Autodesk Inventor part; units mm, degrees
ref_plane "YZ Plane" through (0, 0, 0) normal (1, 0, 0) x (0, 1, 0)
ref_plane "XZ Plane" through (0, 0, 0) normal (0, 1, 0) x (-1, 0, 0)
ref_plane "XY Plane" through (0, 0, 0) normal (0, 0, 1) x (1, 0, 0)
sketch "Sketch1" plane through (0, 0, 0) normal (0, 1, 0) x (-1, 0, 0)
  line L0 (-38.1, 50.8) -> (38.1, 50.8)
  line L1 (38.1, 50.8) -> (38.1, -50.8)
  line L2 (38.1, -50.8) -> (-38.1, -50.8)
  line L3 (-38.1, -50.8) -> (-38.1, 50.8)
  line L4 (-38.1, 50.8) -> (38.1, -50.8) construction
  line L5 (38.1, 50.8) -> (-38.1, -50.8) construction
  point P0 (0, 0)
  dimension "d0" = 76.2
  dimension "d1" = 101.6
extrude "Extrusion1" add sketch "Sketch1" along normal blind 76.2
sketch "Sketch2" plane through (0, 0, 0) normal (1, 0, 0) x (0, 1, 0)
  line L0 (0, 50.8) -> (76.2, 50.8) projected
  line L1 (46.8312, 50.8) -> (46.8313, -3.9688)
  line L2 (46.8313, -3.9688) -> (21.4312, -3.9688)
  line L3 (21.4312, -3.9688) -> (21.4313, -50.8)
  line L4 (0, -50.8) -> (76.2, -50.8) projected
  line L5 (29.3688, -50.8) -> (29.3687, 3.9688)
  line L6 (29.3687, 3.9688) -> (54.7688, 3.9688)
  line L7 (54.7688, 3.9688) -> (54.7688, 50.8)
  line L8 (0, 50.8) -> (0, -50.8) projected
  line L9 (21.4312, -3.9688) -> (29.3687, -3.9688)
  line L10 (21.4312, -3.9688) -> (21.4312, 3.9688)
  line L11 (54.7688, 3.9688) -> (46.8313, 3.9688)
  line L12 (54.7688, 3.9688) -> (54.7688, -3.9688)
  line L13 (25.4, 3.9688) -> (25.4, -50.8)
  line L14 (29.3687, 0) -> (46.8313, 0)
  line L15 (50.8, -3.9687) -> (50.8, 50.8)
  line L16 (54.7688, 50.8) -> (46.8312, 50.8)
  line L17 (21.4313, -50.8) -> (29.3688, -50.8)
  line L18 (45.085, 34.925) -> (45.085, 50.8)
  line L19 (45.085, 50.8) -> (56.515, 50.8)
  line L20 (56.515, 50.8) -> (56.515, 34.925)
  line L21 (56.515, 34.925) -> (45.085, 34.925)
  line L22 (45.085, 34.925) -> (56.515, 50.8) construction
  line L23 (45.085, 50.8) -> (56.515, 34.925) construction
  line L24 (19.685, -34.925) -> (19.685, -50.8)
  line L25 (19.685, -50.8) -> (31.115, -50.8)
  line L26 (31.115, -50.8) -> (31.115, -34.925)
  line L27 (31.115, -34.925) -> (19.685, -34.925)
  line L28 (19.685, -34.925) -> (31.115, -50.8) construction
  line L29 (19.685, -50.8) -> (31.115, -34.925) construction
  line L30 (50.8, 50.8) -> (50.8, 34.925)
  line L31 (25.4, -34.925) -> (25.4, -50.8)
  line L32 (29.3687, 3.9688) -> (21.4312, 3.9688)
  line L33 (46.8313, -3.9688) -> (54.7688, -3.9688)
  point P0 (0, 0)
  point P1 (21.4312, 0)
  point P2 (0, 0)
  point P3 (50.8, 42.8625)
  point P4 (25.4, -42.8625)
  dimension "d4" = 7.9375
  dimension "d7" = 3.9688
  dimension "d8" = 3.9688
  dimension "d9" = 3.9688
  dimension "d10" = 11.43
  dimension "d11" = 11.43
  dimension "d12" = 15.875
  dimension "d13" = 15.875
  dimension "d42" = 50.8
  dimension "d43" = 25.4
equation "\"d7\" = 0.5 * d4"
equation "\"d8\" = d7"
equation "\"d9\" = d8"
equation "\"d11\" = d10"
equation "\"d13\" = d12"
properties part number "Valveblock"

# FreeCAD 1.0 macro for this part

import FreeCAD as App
import Part
import Sketcher
Q = App.Units.Quantity

doc = App.newDocument("Part")
params = doc.addObject("Spreadsheet::Sheet", "Params")
for row, (alias, value) in enumerate([
    ("sketch1_width", "3 in"),
    ("sketch1_height", "4 in"),
    ("pad1_length", "3 in"),
], start=1):
    params.set(f"A{row}", alias)
    params.set(f"B{row}", "=" + value)
    params.setAlias(f"B{row}", alias)

body = doc.addObject("PartDesign::Body", "Body")

sketch1 = body.newObject("Sketcher::SketchObject", "Sketch")
sketch1.AttachmentSupport = (doc.getObject("XZ_Plane"), [""])
sketch1.MapMode = "FlatFace"
sketch1.addGeometry([
    Part.LineSegment(App.Vector(-38.1, 50.8, 0), App.Vector(38.1, 50.8, 0)),
    Part.LineSegment(App.Vector(38.1, 50.8, 0), App.Vector(38.1, -50.8, 0)),
    Part.LineSegment(App.Vector(38.1, -50.8, 0), App.Vector(-38.1, -50.8, 0)),
    Part.LineSegment(App.Vector(-38.1, -50.8, 0), App.Vector(-38.1, 50.8, 0)),
], False)
sketch1.addConstraint([
    Sketcher.Constraint("Coincident", 0, 2, 1, 1),
    Sketcher.Constraint("Coincident", 1, 2, 2, 1),
    Sketcher.Constraint("Coincident", 2, 2, 3, 1),
    Sketcher.Constraint("Coincident", 3, 2, 0, 1),
    Sketcher.Constraint("Horizontal", 0),
    Sketcher.Constraint("Vertical", 1),
    Sketcher.Constraint("Horizontal", 2),
    Sketcher.Constraint("Vertical", 3),
    Sketcher.Constraint("Symmetric", 0, 2, 2, 2, -1, 1),
    Sketcher.Constraint("DistanceX", 0, 1, 0, 2, Q("3 in")),
    Sketcher.Constraint("DistanceY", 1, 2, 1, 1, Q("4 in")),
])
sketch1.setExpression("Constraints[9]", "Params.sketch1_width")
sketch1.setExpression("Constraints[10]", "Params.sketch1_height")
pad1 = body.newObject("PartDesign::Pad", "Pad")
pad1.Profile = sketch1
pad1.setExpression("Length", "Params.pad1_length")
pad1.Reversed = True

doc.recompute()
